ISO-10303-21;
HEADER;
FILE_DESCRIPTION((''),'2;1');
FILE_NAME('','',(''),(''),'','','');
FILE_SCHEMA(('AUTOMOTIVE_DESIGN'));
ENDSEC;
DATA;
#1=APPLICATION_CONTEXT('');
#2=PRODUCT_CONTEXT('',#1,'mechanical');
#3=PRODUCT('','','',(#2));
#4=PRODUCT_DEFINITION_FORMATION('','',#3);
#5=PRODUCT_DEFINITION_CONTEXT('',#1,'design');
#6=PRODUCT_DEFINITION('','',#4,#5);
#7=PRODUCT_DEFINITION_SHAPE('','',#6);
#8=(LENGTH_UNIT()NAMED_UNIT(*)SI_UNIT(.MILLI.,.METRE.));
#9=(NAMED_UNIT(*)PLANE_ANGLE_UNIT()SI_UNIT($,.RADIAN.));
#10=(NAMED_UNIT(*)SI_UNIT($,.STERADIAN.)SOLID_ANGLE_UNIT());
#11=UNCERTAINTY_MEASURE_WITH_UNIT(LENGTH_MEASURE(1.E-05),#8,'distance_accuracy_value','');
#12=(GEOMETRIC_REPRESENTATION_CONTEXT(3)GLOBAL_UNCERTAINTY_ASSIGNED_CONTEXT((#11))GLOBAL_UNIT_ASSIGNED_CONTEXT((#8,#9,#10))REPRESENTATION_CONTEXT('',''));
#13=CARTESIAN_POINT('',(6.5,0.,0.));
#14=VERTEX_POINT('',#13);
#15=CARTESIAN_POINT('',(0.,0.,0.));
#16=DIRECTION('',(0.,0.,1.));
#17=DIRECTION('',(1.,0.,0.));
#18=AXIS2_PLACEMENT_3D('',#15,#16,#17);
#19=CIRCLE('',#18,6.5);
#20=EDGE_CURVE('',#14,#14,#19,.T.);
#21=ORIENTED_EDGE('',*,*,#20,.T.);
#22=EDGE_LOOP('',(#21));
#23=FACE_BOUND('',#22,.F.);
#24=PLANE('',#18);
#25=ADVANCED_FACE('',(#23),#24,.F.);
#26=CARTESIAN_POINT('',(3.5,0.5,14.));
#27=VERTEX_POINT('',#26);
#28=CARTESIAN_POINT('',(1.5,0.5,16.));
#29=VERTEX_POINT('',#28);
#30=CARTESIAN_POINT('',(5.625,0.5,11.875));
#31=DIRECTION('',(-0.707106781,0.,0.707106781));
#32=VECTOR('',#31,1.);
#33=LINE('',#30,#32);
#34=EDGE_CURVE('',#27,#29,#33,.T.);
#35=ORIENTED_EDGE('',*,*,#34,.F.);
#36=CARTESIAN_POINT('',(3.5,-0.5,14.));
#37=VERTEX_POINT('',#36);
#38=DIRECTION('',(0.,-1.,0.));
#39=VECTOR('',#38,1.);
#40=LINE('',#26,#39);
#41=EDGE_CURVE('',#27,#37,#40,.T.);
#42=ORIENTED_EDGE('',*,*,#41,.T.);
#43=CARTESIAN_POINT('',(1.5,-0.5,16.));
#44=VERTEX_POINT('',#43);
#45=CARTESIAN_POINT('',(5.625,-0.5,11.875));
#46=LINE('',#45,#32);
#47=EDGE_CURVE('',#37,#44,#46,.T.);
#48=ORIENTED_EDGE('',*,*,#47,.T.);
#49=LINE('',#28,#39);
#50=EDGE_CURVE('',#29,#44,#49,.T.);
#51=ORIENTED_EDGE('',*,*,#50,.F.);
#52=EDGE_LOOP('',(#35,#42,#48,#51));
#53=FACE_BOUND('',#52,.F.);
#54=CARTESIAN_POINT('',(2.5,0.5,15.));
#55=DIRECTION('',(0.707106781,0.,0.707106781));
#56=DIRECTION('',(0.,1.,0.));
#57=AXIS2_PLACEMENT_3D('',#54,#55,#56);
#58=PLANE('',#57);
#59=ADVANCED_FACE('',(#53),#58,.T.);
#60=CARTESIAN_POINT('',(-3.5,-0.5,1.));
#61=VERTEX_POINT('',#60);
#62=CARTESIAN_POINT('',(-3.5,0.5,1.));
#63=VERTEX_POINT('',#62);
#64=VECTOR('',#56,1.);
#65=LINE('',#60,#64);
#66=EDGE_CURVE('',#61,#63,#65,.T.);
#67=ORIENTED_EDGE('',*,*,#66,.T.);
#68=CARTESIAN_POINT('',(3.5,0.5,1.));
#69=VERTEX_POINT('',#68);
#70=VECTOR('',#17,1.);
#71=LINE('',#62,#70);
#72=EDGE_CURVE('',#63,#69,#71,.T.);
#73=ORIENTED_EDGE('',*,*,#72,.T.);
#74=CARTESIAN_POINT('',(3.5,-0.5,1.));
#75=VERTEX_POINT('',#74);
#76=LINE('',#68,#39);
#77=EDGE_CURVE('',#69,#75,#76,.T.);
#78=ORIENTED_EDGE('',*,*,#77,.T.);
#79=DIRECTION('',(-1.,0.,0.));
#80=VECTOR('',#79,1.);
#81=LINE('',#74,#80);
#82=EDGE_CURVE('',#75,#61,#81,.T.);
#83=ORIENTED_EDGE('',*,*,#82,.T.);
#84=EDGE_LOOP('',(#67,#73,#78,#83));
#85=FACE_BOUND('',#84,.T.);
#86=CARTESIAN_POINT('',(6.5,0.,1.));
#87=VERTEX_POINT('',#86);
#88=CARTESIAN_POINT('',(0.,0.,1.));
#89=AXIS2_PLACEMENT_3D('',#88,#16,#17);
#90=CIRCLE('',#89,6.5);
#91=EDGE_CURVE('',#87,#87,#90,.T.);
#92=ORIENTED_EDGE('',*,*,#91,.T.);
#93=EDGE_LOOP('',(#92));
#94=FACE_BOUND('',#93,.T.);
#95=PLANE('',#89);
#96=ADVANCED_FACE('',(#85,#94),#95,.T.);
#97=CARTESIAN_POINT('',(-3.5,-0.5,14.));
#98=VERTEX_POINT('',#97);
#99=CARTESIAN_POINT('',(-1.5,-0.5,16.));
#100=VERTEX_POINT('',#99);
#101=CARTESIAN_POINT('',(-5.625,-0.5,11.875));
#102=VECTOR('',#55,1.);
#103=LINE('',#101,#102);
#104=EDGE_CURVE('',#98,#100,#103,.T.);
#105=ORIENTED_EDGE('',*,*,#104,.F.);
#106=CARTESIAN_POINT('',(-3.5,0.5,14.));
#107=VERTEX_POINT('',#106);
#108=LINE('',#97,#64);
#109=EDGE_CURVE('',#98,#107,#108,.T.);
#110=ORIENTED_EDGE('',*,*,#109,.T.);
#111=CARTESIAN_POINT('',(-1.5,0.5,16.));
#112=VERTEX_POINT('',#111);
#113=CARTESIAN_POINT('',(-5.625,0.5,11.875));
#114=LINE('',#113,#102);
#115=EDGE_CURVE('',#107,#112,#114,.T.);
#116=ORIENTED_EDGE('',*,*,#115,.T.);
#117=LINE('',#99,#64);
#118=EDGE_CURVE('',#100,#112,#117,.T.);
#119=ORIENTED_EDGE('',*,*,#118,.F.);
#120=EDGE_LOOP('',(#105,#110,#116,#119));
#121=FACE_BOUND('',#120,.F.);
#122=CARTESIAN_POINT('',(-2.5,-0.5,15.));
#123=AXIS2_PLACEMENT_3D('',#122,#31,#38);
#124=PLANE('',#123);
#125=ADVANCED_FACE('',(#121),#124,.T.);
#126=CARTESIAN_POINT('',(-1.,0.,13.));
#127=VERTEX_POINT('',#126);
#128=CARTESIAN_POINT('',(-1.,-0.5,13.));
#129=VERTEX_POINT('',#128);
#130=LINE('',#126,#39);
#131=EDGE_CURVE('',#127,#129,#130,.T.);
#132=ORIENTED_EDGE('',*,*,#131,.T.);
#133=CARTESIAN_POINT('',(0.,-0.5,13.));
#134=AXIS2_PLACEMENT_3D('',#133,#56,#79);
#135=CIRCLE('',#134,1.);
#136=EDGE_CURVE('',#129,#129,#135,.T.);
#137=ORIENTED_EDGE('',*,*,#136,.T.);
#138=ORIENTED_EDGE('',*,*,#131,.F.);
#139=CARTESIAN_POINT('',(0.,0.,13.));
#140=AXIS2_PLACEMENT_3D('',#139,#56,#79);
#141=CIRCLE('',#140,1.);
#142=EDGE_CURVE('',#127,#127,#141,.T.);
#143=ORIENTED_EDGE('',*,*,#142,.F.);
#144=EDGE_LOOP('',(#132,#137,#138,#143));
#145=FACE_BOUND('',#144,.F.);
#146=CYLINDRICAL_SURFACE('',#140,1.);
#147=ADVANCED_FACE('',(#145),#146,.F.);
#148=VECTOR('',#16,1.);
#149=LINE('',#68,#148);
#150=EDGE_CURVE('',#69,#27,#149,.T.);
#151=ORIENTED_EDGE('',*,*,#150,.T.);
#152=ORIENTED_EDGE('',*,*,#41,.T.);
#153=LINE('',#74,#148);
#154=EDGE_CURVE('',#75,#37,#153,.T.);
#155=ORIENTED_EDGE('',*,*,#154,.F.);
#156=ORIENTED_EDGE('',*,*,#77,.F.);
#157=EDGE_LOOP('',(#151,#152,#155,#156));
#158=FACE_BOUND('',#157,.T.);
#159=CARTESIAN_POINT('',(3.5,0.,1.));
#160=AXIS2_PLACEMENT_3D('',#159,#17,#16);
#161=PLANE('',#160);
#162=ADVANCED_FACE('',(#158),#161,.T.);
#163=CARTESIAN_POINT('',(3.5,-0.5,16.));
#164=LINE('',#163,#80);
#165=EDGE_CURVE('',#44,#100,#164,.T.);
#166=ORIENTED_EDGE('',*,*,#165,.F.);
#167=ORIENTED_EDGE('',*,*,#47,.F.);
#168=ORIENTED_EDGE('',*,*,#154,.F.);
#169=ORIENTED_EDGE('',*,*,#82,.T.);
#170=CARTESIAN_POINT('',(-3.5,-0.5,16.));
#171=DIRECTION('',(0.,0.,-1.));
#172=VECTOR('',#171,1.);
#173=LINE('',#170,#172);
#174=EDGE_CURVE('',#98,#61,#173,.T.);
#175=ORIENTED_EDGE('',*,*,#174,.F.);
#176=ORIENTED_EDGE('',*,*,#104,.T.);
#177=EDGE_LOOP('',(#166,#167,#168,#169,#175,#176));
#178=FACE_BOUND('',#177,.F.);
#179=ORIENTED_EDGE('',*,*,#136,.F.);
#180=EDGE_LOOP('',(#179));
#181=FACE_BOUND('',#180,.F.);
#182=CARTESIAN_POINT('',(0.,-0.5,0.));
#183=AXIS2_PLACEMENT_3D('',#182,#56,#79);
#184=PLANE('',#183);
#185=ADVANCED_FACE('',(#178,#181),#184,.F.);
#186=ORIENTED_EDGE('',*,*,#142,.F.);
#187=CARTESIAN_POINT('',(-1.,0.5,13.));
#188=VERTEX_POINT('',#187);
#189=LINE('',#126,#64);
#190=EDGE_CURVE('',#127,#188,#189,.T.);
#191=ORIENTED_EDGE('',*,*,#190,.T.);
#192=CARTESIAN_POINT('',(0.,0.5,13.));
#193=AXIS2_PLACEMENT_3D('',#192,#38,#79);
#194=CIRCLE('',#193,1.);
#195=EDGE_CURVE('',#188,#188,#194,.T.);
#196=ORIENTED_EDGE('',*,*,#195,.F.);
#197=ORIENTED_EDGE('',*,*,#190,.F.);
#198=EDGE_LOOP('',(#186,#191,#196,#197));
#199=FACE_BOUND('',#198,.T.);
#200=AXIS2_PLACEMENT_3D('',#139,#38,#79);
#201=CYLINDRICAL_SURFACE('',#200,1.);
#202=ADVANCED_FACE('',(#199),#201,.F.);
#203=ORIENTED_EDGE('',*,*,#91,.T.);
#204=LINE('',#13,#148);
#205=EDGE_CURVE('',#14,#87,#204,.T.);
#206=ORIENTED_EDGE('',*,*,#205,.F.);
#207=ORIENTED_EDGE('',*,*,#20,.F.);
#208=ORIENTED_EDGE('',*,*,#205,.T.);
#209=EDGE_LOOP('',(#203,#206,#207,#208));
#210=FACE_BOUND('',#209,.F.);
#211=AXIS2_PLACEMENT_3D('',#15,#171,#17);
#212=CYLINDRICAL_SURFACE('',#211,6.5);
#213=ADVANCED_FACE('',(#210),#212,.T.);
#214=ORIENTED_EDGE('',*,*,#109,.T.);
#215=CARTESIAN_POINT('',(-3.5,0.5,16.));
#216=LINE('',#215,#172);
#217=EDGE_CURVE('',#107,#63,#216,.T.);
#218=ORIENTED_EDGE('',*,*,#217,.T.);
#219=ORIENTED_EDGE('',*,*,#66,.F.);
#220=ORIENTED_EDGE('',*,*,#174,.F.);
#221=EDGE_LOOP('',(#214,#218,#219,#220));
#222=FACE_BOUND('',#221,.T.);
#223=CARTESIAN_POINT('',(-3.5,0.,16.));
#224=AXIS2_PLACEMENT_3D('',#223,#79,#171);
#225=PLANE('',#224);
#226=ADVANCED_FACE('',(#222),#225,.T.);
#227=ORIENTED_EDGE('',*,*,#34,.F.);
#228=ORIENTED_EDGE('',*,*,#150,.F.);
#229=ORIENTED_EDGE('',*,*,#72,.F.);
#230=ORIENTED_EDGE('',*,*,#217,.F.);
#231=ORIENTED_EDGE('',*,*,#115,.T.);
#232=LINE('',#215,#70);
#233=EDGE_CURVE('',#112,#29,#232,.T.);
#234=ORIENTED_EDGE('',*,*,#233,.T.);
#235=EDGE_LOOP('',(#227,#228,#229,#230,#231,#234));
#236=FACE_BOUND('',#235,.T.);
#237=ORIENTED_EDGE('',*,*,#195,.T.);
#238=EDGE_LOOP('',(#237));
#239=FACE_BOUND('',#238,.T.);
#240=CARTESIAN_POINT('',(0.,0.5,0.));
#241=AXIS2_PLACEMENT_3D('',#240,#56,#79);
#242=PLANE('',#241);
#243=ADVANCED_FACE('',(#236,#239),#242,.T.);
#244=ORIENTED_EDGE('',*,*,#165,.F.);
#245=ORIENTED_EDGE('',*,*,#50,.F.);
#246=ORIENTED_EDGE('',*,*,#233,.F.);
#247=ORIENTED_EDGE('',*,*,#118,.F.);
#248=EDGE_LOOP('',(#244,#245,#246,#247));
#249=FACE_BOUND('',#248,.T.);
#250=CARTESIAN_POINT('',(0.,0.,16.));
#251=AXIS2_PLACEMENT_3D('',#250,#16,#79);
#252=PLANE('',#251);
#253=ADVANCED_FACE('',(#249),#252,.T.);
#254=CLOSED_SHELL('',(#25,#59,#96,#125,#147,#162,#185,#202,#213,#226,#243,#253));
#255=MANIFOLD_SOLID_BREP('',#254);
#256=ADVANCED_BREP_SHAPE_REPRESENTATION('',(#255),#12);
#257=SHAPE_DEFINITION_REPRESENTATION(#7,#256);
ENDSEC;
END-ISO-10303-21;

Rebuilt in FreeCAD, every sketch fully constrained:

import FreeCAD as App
import Part
import Sketcher


def edges_at(feature, points):
    """Names of the edges that pass closest to the given points."""
    edges = feature.Shape.Edges
    near = lambda p: min(range(len(edges)), key=lambda i: edges[i].distToShape(Part.Vertex(*p))[0])
    return sorted({f"Edge{near(p) + 1}" for p in points})

doc = App.newDocument("Part")
body = doc.addObject("PartDesign::Body", "Body")

# Sketch on XY plane
sketch1 = body.newObject("Sketcher::SketchObject", "Sketch")
sketch1.AttachmentSupport = (doc.getObject("XY_Plane"), [""])
sketch1.MapMode = "FlatFace"
sketch1.addGeometry(Part.Circle(App.Vector(0, 0, 0), App.Vector(0, 0, 1), 6), False)
sketch1.addConstraint([
    Sketcher.Constraint("Coincident", 0, 3, -1, 1),
    Sketcher.Constraint("Diameter", 0, 13.0),
])
pad1 = body.newObject("PartDesign::Pad", "Pad")
pad1.Profile = sketch1
pad1.Length = 1

# Sketch on XZ plane
sketch2 = body.newObject("Sketcher::SketchObject", "Sketch001")
sketch2.AttachmentSupport = (doc.getObject("XZ_Plane"), [""])
sketch2.MapMode = "FlatFace"
sketch2.addGeometry([
    Part.LineSegment(App.Vector(-3.5, 1, 0), App.Vector(-3.5, 16, 0)),  # 0
    Part.LineSegment(App.Vector(-3.5, 16, 0), App.Vector(3.5, 16, 0)),  # 1
    Part.LineSegment(App.Vector(3.5, 16, 0), App.Vector(3.5, 1, 0)),  # 2
    Part.LineSegment(App.Vector(3.5, 1, 0), App.Vector(-3.5, 1, 0)),  # 3
    Part.Circle(App.Vector(0, 13, 0), App.Vector(0, 0, 1), 1),  # 4
], False)
sketch2.addConstraint([
    Sketcher.Constraint("Coincident", 0, 2, 1, 1),
    Sketcher.Constraint("Coincident", 1, 2, 2, 1),
    Sketcher.Constraint("Coincident", 2, 2, 3, 1),
    Sketcher.Constraint("Coincident", 3, 2, 0, 1),
    Sketcher.Constraint("Vertical", 0),
    Sketcher.Constraint("Horizontal", 1),
    Sketcher.Constraint("Vertical", 2),
    Sketcher.Constraint("Horizontal", 3),
    Sketcher.Constraint("PointOnObject", 4, 3, -2),
    Sketcher.Constraint("Diameter", 4, 2.0),
    Sketcher.Constraint("DistanceX", 1, 1, 1, 2, 7.0),
    Sketcher.Constraint("DistanceY", 0, 1, 0, 2, 15.0),
    Sketcher.Constraint("DistanceY", 4, 3, 0, 2, 3.0),
    Sketcher.Constraint("DistanceY", -1, 1, 4, 3, 13.0),
    Sketcher.Constraint("DistanceX", 0, 2, -1, 1, 3.5),
])
pad2 = body.newObject("PartDesign::Pad", "Pad001")
pad2.Profile = sketch2
pad2.Length = 1
pad2.Midplane = True
doc.recompute()

chamfer = body.newObject("PartDesign::Chamfer", "Chamfer")
chamfer.Base = (pad2, edges_at(pad2, [(3.5, 0, 16), (-3.5, 0, 16)]))
chamfer.Size = 2

doc.recompute()
